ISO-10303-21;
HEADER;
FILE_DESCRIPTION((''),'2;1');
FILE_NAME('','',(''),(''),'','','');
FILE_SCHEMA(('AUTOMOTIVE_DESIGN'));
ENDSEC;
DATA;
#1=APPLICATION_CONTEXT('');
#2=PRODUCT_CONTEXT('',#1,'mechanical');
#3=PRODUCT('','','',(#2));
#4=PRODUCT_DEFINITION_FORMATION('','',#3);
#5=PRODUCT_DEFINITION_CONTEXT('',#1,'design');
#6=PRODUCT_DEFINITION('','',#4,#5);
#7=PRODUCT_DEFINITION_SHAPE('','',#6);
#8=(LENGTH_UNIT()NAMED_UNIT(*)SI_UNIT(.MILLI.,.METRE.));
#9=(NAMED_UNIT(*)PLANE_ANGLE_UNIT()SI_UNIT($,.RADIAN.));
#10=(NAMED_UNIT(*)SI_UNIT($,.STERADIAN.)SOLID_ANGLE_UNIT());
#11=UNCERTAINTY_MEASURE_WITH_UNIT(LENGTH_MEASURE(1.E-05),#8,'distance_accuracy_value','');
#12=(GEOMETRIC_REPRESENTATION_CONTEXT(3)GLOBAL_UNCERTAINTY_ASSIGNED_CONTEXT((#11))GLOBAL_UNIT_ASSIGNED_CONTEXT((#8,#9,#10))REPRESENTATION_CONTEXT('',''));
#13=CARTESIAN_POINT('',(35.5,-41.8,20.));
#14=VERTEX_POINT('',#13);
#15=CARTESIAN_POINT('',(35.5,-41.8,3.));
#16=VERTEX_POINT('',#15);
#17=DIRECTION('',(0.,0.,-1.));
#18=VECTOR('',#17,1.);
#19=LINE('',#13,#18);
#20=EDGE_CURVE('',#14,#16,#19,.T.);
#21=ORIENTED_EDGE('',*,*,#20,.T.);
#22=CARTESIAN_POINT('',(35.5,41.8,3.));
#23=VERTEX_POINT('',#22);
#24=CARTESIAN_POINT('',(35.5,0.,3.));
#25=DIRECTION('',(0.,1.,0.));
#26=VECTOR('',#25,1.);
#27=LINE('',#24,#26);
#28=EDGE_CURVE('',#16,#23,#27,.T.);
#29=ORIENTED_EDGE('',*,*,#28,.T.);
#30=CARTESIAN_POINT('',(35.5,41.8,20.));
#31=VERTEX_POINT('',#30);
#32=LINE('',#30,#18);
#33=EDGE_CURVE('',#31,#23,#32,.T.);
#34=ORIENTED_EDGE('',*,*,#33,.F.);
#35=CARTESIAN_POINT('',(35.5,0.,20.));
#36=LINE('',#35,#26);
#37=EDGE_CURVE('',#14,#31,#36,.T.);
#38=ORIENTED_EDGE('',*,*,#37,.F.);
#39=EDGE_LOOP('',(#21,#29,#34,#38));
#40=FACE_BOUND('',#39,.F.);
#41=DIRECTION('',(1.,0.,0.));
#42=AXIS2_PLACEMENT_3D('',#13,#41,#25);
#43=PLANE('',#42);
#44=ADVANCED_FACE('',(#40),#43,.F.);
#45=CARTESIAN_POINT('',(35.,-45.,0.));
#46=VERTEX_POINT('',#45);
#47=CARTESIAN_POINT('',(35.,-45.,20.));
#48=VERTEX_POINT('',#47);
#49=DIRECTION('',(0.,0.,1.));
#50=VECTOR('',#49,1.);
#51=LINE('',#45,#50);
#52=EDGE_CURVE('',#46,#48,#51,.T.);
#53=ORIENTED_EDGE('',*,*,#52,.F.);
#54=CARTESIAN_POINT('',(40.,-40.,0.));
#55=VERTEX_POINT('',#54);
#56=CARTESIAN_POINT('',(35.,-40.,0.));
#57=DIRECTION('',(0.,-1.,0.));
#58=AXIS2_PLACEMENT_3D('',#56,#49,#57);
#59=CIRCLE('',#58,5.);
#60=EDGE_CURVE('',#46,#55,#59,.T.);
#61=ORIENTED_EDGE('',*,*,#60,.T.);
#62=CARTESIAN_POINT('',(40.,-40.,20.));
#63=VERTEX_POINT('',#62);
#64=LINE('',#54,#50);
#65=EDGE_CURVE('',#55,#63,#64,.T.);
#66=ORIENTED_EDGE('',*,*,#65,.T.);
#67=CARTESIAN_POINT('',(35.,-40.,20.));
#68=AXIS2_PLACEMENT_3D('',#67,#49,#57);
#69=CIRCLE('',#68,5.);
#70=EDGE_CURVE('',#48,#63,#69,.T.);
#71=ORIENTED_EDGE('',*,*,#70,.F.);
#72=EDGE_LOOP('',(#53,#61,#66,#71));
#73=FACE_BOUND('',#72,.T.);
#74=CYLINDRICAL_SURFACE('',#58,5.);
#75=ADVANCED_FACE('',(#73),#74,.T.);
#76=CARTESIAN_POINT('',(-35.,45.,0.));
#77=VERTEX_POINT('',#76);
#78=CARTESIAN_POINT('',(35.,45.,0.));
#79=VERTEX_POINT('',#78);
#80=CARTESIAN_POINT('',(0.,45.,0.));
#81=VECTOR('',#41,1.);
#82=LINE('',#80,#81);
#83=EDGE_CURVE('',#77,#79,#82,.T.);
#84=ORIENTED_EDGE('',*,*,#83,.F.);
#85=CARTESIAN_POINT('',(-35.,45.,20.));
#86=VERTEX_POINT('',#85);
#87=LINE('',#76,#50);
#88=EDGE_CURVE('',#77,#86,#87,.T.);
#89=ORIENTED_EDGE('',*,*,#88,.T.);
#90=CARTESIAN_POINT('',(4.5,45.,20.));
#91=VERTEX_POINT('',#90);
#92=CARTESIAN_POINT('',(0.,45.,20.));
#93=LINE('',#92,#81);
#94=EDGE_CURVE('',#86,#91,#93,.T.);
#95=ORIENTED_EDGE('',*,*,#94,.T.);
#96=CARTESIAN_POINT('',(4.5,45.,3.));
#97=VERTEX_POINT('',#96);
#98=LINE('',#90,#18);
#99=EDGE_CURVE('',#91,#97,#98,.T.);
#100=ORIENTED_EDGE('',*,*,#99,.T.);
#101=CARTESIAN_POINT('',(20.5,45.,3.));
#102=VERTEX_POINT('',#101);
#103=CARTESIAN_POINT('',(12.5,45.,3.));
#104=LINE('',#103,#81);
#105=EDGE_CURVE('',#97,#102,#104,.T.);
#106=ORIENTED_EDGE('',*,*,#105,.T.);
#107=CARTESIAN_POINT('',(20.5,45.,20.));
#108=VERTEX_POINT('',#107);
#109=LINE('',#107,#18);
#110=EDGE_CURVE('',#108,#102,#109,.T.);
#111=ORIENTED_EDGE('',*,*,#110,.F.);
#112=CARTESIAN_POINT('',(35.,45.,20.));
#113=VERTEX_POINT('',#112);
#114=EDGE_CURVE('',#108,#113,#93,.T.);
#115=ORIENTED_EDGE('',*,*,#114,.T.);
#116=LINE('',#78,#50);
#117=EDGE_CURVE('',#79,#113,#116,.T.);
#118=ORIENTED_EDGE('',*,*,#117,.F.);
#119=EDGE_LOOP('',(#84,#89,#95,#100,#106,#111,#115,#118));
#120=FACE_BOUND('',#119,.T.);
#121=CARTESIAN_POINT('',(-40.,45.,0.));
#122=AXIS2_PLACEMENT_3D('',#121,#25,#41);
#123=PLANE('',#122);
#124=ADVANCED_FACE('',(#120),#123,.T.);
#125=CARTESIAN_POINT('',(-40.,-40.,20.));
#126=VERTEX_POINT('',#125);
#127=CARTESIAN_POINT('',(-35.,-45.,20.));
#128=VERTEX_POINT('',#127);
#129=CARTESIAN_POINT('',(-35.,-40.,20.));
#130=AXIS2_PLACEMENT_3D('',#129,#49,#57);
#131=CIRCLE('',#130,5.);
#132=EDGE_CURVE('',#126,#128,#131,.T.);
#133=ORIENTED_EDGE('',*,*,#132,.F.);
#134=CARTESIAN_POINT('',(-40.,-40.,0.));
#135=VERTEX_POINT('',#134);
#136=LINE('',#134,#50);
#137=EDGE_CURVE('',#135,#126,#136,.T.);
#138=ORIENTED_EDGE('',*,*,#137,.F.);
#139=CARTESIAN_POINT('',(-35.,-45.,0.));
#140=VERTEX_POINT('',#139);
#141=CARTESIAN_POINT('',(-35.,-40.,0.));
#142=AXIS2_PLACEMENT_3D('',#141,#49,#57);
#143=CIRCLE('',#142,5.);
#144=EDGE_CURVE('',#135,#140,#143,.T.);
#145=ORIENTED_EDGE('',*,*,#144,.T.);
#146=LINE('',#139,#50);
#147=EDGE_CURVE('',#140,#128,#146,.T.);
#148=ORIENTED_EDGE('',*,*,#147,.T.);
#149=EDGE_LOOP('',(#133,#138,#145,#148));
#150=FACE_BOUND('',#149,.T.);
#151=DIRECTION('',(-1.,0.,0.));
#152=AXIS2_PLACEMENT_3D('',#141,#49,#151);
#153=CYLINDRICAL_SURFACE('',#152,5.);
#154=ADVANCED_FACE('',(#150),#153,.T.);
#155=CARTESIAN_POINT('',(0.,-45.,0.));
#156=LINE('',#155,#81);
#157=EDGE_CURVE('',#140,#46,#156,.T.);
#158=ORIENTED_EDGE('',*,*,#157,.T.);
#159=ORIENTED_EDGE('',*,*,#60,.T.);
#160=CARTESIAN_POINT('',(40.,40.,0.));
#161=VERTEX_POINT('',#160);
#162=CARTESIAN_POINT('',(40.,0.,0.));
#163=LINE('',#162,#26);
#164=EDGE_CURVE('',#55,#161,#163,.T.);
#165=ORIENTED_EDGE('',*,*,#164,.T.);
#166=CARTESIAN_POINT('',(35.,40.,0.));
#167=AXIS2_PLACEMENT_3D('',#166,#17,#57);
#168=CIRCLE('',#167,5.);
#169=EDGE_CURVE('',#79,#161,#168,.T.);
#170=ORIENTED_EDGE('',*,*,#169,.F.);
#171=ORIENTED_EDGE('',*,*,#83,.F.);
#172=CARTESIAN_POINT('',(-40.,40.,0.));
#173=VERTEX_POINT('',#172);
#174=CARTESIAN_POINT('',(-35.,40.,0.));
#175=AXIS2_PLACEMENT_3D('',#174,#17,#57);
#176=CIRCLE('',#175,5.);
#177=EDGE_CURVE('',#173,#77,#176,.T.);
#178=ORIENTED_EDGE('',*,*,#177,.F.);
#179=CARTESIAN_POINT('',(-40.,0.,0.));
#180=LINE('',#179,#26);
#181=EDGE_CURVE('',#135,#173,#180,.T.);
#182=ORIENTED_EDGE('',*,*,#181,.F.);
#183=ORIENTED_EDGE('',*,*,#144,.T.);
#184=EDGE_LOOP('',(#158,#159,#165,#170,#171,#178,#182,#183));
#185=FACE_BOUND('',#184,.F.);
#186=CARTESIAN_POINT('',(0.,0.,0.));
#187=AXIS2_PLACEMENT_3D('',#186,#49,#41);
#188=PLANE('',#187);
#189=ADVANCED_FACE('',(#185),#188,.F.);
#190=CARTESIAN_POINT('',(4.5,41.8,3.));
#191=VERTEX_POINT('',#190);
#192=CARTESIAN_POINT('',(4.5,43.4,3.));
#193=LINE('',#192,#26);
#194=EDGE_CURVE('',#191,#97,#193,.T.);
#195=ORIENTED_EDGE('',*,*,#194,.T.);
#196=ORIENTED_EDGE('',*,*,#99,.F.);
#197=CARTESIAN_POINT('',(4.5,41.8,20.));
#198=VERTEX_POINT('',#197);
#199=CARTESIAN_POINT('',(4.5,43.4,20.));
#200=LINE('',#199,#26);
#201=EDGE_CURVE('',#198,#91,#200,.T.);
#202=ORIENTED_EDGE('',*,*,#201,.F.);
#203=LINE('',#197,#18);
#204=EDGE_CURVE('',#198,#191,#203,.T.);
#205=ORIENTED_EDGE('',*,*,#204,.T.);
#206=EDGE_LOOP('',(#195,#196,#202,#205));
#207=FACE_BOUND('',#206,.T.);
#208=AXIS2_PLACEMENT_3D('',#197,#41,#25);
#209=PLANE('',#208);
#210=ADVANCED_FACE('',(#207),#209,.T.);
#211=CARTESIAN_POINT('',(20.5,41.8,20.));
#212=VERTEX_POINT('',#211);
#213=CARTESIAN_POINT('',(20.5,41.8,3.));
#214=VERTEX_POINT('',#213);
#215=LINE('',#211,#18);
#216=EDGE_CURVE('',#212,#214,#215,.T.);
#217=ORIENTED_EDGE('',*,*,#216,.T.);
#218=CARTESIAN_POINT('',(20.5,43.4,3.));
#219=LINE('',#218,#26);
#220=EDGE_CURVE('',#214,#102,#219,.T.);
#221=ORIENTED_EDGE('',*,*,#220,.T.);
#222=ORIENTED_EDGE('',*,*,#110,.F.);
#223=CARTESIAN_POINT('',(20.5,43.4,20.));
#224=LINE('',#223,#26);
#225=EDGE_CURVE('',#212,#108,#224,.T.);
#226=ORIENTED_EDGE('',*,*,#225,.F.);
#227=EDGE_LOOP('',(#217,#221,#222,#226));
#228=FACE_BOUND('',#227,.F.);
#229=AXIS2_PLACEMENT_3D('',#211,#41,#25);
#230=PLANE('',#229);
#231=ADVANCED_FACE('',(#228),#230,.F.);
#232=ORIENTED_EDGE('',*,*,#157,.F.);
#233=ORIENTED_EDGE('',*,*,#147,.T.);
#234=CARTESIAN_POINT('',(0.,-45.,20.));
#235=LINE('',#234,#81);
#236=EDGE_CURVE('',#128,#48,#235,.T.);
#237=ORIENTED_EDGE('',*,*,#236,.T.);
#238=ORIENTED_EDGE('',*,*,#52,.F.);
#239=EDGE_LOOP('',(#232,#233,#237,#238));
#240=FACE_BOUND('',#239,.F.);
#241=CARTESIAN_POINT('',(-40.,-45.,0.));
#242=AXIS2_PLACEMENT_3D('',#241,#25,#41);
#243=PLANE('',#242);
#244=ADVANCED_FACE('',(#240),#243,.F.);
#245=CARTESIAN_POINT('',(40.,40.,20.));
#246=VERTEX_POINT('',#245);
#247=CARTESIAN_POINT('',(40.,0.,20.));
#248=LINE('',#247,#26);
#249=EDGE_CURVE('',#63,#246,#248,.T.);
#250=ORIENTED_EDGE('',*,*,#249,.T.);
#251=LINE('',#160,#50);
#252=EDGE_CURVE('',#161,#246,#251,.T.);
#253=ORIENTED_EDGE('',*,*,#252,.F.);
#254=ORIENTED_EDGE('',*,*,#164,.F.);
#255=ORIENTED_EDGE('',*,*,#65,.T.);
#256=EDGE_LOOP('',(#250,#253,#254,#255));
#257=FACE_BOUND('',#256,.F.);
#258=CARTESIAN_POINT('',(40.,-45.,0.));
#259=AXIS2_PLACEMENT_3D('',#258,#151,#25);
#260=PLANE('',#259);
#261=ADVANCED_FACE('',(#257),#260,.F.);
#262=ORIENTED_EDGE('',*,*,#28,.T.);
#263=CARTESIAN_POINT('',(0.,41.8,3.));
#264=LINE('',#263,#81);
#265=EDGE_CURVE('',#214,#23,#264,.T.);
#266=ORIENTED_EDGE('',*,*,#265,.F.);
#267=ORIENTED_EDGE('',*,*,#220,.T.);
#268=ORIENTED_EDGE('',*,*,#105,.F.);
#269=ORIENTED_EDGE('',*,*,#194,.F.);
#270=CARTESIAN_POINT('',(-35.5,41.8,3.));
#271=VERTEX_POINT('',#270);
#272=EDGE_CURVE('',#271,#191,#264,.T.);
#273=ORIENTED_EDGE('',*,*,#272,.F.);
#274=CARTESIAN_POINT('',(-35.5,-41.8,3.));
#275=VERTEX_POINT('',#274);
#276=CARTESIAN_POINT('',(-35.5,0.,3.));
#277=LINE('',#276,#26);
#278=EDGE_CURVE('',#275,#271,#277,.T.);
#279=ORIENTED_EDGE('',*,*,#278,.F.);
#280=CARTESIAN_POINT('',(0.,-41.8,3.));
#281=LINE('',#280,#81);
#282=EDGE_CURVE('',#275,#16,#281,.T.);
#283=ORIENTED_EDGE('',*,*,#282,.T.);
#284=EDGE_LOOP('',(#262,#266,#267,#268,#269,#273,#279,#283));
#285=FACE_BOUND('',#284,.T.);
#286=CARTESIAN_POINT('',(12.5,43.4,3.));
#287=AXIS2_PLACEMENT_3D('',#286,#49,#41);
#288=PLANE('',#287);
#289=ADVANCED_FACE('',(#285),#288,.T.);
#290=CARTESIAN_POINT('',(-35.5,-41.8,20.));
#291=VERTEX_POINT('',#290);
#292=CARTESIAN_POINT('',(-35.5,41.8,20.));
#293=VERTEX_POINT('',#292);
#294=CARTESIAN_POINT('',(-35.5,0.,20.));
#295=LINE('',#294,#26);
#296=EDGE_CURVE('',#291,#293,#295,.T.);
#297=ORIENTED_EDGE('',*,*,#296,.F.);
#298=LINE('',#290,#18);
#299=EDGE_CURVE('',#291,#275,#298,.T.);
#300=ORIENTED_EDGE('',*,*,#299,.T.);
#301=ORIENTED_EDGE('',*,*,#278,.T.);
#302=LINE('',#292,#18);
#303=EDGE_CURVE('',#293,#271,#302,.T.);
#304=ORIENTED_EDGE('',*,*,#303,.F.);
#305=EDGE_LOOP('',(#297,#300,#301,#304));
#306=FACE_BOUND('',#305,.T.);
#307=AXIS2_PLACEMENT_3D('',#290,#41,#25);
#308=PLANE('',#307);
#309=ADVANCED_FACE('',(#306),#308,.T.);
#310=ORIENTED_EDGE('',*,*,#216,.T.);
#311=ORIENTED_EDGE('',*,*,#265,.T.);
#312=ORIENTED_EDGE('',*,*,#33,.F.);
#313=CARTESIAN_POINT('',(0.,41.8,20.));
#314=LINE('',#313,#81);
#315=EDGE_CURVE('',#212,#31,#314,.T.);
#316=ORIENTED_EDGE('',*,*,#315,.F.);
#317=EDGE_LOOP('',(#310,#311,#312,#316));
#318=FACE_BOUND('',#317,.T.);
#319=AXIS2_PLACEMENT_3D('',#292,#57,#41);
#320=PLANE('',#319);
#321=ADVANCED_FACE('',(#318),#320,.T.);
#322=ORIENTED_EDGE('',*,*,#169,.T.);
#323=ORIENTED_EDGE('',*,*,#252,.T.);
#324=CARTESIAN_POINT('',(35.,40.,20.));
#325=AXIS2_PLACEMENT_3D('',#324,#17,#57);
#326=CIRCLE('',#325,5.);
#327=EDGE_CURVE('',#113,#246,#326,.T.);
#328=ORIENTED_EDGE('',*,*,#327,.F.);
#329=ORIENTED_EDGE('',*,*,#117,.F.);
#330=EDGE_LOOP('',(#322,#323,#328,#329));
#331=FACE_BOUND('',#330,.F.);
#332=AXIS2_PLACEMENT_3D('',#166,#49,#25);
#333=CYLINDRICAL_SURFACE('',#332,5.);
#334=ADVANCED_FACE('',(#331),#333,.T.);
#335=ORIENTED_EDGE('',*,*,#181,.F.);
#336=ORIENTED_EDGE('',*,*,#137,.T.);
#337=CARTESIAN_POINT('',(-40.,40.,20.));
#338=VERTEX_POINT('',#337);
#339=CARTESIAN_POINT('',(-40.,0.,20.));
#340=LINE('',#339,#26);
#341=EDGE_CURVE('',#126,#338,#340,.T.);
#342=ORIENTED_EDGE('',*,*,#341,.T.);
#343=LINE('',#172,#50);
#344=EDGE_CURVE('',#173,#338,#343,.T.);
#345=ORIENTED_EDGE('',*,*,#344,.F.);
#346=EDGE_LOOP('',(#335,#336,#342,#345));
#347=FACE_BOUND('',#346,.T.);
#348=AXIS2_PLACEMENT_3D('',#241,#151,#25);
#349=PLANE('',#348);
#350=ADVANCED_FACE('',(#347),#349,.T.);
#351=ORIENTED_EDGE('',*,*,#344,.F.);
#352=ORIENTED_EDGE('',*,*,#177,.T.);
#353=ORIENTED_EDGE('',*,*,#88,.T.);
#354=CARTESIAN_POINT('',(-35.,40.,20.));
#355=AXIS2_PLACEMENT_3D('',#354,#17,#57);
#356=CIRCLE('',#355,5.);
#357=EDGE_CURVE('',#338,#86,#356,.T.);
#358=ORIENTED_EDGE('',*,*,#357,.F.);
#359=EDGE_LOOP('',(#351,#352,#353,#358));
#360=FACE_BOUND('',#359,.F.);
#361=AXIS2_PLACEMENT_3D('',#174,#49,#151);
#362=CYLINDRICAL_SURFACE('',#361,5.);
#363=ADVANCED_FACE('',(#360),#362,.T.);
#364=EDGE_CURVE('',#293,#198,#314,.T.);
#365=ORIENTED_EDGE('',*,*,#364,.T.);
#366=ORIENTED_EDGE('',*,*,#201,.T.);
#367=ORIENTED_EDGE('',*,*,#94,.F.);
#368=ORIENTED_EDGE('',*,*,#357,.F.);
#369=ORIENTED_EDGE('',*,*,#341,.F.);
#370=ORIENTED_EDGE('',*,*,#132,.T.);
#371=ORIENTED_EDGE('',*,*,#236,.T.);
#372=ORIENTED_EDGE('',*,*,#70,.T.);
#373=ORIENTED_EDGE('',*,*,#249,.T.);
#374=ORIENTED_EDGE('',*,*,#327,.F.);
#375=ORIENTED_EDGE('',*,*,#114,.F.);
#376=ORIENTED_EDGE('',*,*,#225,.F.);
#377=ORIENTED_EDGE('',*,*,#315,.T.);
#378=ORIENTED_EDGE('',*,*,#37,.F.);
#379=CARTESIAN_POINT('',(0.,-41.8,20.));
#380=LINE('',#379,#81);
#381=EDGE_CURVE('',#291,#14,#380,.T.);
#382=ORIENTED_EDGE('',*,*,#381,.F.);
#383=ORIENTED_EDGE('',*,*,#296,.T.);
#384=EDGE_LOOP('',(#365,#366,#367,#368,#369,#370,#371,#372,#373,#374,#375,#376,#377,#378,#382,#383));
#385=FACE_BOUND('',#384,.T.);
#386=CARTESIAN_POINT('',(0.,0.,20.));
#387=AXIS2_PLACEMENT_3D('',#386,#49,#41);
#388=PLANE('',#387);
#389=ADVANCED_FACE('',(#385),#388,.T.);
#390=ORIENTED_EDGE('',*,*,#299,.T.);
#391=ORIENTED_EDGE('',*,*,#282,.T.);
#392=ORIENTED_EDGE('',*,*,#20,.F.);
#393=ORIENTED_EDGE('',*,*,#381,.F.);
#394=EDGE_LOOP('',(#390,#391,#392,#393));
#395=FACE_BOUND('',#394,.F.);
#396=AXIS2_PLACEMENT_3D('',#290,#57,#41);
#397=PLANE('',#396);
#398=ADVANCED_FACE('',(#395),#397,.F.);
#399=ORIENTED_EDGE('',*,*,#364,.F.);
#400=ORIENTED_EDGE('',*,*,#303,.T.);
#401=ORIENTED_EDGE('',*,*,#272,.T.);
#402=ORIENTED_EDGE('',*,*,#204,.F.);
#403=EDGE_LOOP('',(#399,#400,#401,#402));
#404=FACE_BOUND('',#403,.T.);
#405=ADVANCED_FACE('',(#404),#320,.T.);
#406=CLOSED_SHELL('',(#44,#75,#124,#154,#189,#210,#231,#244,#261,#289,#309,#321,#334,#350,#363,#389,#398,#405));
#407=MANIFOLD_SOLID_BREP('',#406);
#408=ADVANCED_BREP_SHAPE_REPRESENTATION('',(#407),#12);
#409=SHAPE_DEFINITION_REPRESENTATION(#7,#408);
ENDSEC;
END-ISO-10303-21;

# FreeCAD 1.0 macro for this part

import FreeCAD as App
import Part
import Sketcher
from FreeCAD import Vector
Q = App.Units.Quantity


def edges_at(feature, points):
    """Names of the edges that pass closest to the given points."""
    edges = feature.Shape.Edges
    near = lambda p: min(range(len(edges)), key=lambda i: edges[i].distToShape(Part.Vertex(*p))[0])
    return sorted({f"Edge{near(p) + 1}" for p in points})

doc = App.newDocument("Part")
body = doc.addObject("PartDesign::Body", "Body")

# Sketch on XY plane
sketch1 = doc.addObject("Sketcher::SketchObject", "Sketch")
body.addObject(sketch1)
sketch1.AttachmentSupport = (doc.XY_Plane, [""])
sketch1.MapMode = "FlatFace"
sketch1.addGeometry(Part.LineSegment(Vector(-40, 45, 0), Vector(-40, -45, 0)), False)
sketch1.addGeometry(Part.LineSegment(Vector(-40, -45, 0), Vector(40, -45, 0)), False)
sketch1.addGeometry(Part.LineSegment(Vector(40, -45, 0), Vector(40, 45, 0)), False)
sketch1.addGeometry(Part.LineSegment(Vector(40, 45, 0), Vector(-40, 45, 0)), False)
sketch1.addConstraint(Sketcher.Constraint("Coincident", 0, 2, 1, 1))
sketch1.addConstraint(Sketcher.Constraint("Coincident", 1, 2, 2, 1))
sketch1.addConstraint(Sketcher.Constraint("Coincident", 2, 2, 3, 1))
sketch1.addConstraint(Sketcher.Constraint("Coincident", 3, 2, 0, 1))
sketch1.addConstraint(Sketcher.Constraint("Vertical", 0))
sketch1.addConstraint(Sketcher.Constraint("Horizontal", 1))
sketch1.addConstraint(Sketcher.Constraint("Vertical", 2))
sketch1.addConstraint(Sketcher.Constraint("Horizontal", 3))
sketch1.addConstraint(Sketcher.Constraint("Symmetric", 0, 2, 2, 2, -1, 1))
sketch1.addConstraint(Sketcher.Constraint("DistanceX", 1, 1, 1, 2, Q("80 mm")))
sketch1.addConstraint(Sketcher.Constraint("DistanceY", 0, 2, 0, 1, Q("90 mm")))
pad1 = doc.addObject("PartDesign::Pad", "Pad")
body.addObject(pad1)
pad1.Profile = sketch1
pad1.Length = 20

# Sketch on XY plane
sketch2 = doc.addObject("Sketcher::SketchObject", "Sketch001")
body.addObject(sketch2)
sketch2.AttachmentSupport = (doc.XY_Plane, [""])
sketch2.MapMode = "FlatFace"
sketch2.AttachmentOffset = App.Placement(Vector(0, 0, 20), App.Rotation())
sketch2.addGeometry(Part.LineSegment(Vector(-36, 42, 0), Vector(-36, -42, 0)), False)
sketch2.addGeometry(Part.LineSegment(Vector(-36, -42, 0), Vector(36, -42, 0)), False)
sketch2.addGeometry(Part.LineSegment(Vector(36, -42, 0), Vector(36, 42, 0)), False)
sketch2.addGeometry(Part.LineSegment(Vector(36, 42, 0), Vector(-36, 42, 0)), False)
sketch2.addConstraint(Sketcher.Constraint("Coincident", 0, 2, 1, 1))
sketch2.addConstraint(Sketcher.Constraint("Coincident", 1, 2, 2, 1))
sketch2.addConstraint(Sketcher.Constraint("Coincident", 2, 2, 3, 1))
sketch2.addConstraint(Sketcher.Constraint("Coincident", 3, 2, 0, 1))
sketch2.addConstraint(Sketcher.Constraint("Vertical", 0))
sketch2.addConstraint(Sketcher.Constraint("Horizontal", 1))
sketch2.addConstraint(Sketcher.Constraint("Vertical", 2))
sketch2.addConstraint(Sketcher.Constraint("Horizontal", 3))
sketch2.addConstraint(Sketcher.Constraint("Symmetric", 0, 2, 2, 2, -1, 1))
sketch2.addConstraint(Sketcher.Constraint("DistanceX", 1, 1, 1, 2, Q("71 mm")))
sketch2.addConstraint(Sketcher.Constraint("DistanceY", 0, 2, 0, 1, Q("83.6 mm")))
pocket1 = doc.addObject("PartDesign::Pocket", "Pocket")
body.addObject(pocket1)
pocket1.Profile = sketch2
pocket1.Length = 17

# Sketch on XY plane
sketch3 = doc.addObject("Sketcher::SketchObject", "Sketch002")
body.addObject(sketch3)
sketch3.AttachmentSupport = (doc.XY_Plane, [""])
sketch3.MapMode = "FlatFace"
sketch3.AttachmentOffset = App.Placement(Vector(0, 0, 20), App.Rotation())
sketch3.addGeometry(Part.LineSegment(Vector(4.5, 45, 0), Vector(4.5, 41.8, 0)), False)
sketch3.addGeometry(Part.LineSegment(Vector(4.5, 41.8, 0), Vector(20.5, 41.8, 0)), False)
sketch3.addGeometry(Part.LineSegment(Vector(20.5, 41.8, 0), Vector(20.5, 45, 0)), False)
sketch3.addGeometry(Part.LineSegment(Vector(20.5, 45, 0), Vector(4.5, 45, 0)), False)
sketch3.addConstraint(Sketcher.Constraint("Coincident", 0, 2, 1, 1))
sketch3.addConstraint(Sketcher.Constraint("Coincident", 1, 2, 2, 1))
sketch3.addConstraint(Sketcher.Constraint("Coincident", 2, 2, 3, 1))
sketch3.addConstraint(Sketcher.Constraint("Coincident", 3, 2, 0, 1))
sketch3.addConstraint(Sketcher.Constraint("Vertical", 0))
sketch3.addConstraint(Sketcher.Constraint("Horizontal", 1))
sketch3.addConstraint(Sketcher.Constraint("Vertical", 2))
sketch3.addConstraint(Sketcher.Constraint("Horizontal", 3))
sketch3.addConstraint(Sketcher.Constraint("DistanceX", 1, 1, 1, 2, Q("16 mm")))
sketch3.addConstraint(Sketcher.Constraint("DistanceY", 0, 2, 0, 1, Q("3.2 mm")))
sketch3.addConstraint(Sketcher.Constraint("DistanceY", -1, 1, 2, 2, Q("45 mm")))
sketch3.addConstraint(Sketcher.Constraint("DistanceX", -1, 1, 0, 2, Q("4.5 mm")))
pocket2 = doc.addObject("PartDesign::Pocket", "Pocket001")
body.addObject(pocket2)
pocket2.Profile = sketch3
pocket2.Length = 17
doc.recompute()

fillet = doc.addObject("PartDesign::Fillet", "Fillet")
body.addObject(fillet)
fillet.Base = (pocket2, edges_at(pocket2, [
    (40, 45, 10),
    (-40, 45, 10),
    (40, -45, 10),
    (-40, -45, 10),
]))
fillet.Radius = 5

doc.recompute()
